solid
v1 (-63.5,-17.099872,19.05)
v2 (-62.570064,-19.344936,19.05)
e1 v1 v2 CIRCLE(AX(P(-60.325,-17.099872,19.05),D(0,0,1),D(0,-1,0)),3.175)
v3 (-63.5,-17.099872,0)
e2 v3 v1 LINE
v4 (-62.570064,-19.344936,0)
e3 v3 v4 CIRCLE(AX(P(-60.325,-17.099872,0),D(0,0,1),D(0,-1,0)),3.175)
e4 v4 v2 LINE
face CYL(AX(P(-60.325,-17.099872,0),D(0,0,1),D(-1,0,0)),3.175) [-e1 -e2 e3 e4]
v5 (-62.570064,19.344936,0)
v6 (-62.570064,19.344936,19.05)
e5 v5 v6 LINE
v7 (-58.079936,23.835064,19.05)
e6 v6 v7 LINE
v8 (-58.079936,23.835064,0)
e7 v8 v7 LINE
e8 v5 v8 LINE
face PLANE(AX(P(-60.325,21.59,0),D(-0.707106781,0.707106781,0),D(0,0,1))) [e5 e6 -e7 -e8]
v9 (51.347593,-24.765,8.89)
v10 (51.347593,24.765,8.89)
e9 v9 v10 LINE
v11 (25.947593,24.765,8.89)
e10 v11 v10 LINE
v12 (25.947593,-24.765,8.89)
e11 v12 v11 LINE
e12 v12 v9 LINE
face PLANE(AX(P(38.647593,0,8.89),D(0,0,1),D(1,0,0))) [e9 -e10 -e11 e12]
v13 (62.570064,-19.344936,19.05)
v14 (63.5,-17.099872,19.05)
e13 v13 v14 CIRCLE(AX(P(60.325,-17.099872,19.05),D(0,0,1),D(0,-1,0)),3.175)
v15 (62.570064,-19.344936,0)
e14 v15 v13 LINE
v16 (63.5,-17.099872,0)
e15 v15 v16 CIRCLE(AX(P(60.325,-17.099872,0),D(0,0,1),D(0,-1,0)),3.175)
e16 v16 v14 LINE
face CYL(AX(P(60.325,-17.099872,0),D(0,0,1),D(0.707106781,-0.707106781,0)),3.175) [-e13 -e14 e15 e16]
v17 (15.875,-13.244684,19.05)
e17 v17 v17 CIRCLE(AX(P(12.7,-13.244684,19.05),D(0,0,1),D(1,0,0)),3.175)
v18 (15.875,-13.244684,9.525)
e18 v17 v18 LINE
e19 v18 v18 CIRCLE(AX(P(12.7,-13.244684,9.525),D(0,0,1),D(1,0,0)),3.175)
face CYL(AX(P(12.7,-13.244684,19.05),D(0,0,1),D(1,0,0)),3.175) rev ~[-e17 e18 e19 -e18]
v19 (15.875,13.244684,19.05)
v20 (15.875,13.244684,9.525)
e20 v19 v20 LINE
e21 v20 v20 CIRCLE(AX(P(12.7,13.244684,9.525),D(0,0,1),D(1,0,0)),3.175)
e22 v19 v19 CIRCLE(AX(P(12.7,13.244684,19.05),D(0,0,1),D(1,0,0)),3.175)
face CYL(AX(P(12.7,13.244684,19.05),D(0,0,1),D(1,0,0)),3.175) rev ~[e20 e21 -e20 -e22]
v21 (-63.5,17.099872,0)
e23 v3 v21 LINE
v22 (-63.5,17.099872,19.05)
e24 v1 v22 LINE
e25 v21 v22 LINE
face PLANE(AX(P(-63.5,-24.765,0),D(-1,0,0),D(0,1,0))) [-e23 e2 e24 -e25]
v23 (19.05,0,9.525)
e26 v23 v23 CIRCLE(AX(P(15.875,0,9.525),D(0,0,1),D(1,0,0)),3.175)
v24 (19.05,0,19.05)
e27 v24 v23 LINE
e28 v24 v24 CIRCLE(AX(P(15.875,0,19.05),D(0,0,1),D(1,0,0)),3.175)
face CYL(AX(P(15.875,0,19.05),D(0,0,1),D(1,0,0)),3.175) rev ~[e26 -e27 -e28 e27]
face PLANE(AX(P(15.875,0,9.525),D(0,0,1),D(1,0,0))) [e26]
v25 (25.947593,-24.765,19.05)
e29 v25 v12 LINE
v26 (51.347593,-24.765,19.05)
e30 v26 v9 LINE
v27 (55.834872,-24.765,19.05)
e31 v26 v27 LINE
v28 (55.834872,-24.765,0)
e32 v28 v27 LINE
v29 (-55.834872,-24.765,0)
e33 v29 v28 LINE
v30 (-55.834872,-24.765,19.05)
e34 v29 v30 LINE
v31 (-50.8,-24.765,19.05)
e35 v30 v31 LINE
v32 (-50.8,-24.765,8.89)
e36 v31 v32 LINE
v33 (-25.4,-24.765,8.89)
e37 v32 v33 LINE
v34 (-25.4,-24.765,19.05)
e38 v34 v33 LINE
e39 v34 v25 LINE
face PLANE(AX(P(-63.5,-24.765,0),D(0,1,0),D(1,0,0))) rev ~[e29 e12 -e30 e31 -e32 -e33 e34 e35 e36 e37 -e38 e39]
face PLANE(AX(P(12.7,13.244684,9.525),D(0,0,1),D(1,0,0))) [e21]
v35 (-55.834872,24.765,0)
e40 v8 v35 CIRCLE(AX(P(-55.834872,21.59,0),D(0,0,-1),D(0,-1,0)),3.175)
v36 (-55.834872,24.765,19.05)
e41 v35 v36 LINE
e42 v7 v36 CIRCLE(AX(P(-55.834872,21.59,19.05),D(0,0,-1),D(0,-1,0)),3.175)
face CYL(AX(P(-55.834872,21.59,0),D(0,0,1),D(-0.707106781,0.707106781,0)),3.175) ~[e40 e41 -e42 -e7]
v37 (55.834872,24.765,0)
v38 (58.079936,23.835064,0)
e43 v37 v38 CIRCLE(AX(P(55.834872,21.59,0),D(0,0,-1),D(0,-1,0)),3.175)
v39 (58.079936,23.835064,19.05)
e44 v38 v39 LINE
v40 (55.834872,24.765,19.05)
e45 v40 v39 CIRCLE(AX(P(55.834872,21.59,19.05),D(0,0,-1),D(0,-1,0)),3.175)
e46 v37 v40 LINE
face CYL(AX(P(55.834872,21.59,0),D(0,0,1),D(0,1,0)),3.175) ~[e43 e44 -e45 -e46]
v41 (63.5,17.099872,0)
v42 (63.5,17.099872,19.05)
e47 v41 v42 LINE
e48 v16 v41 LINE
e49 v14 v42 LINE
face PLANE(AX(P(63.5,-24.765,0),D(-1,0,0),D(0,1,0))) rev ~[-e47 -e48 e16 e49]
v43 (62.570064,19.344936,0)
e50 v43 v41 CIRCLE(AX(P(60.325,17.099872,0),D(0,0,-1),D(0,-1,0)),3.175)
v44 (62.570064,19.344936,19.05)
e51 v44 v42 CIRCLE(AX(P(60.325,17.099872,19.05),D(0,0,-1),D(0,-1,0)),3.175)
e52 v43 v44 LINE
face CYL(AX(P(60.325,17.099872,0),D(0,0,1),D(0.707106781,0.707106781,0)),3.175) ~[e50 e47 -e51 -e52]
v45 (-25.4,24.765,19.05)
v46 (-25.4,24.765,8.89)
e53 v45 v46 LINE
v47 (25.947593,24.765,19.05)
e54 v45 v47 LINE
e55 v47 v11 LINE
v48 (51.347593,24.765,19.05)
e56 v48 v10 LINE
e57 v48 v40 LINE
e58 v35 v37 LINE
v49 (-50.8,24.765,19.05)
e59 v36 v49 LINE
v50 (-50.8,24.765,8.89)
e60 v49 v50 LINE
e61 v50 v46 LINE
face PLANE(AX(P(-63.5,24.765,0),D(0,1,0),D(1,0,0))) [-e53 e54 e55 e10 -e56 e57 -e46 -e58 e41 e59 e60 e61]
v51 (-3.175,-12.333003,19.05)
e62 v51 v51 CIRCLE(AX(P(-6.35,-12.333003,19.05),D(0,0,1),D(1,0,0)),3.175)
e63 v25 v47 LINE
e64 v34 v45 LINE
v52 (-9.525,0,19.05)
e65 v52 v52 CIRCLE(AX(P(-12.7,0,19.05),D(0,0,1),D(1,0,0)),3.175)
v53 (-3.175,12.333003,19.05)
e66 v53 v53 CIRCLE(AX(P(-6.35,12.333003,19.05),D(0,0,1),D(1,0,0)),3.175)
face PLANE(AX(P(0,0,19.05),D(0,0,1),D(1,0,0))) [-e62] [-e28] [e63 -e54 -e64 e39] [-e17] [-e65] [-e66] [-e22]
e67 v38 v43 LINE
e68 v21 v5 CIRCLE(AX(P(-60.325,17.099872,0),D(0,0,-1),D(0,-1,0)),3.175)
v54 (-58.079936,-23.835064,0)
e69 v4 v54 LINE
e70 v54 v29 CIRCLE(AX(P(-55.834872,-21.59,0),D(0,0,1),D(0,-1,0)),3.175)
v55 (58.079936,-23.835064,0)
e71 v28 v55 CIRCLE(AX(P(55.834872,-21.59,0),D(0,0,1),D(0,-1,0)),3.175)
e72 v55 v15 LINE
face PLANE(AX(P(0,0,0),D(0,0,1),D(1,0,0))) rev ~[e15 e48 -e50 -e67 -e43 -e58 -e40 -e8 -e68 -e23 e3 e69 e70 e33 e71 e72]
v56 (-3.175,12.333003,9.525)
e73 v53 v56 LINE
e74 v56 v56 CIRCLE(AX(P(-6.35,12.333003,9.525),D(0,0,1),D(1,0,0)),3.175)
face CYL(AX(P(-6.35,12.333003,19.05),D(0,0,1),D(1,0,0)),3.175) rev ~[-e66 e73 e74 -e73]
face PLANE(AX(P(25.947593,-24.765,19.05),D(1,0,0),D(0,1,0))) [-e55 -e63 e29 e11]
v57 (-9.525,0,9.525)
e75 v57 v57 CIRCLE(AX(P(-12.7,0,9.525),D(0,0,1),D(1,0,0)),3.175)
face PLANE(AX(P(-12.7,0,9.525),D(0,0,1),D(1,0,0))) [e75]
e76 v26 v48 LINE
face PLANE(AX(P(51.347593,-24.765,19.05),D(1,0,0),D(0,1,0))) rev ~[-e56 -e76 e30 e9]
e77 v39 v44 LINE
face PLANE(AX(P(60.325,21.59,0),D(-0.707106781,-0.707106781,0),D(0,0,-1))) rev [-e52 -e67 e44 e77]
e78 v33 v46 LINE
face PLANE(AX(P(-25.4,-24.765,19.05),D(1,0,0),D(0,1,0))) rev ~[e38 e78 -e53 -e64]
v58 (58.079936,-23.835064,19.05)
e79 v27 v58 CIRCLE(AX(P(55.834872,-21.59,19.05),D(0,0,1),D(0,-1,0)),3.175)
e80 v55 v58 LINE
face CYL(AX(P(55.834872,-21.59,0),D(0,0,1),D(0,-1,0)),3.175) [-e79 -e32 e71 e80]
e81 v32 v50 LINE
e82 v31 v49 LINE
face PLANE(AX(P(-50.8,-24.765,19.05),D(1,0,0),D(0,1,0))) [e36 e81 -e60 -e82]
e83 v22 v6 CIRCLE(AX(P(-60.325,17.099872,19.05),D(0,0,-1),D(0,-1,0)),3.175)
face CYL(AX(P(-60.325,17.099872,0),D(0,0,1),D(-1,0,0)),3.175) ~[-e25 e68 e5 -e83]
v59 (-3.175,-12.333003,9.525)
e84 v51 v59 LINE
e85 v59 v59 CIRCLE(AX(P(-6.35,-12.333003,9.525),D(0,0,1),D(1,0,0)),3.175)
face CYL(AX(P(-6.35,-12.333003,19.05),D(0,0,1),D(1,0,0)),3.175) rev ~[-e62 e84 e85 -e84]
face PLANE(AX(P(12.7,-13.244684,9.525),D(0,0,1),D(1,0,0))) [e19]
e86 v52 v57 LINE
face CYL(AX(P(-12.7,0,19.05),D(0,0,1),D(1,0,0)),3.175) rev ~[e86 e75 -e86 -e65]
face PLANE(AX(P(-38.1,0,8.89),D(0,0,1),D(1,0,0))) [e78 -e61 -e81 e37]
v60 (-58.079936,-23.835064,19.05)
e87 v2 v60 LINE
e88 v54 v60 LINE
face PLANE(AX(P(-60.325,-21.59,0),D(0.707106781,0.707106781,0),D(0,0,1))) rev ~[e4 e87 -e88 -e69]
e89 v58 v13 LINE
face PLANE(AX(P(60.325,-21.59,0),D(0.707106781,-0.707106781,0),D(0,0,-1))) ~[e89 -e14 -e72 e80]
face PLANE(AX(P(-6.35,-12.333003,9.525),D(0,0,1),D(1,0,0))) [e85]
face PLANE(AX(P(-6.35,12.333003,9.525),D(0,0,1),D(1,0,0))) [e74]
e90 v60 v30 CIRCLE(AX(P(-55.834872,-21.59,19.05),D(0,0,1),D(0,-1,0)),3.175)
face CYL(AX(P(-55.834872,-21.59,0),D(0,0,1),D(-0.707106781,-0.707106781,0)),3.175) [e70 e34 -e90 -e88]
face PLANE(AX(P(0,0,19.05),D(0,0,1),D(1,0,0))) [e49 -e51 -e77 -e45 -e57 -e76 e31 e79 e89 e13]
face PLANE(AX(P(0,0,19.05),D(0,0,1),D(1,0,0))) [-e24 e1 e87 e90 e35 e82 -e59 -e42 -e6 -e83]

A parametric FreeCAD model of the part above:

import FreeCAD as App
import Part
import Sketcher
from FreeCAD import Vector
Q = App.Units.Quantity


def edges_at(feature, points):
    """Names of the edges that pass closest to the given points."""
    edges = feature.Shape.Edges
    near = lambda p: min(range(len(edges)), key=lambda i: edges[i].distToShape(Part.Vertex(*p))[0])
    return sorted({f"Edge{near(p) + 1}" for p in points})

doc = App.newDocument("Part")
body = doc.addObject("PartDesign::Body", "Body")

sketch1 = doc.addObject("Sketcher::SketchObject", "Sketch")
body.addObject(sketch1)
sketch1.AttachmentSupport = (doc.XY_Plane, [""])
sketch1.MapMode = "FlatFace"
sketch1.addGeometry([
    Part.LineSegment(Vector(-63.5, 24.765, 0), Vector(-63.5, -24.765, 0)),
    Part.LineSegment(Vector(-63.5, -24.765, 0), Vector(63.5, -24.765, 0)),
    Part.LineSegment(Vector(63.5, -24.765, 0), Vector(63.5, 24.765, 0)),
    Part.LineSegment(Vector(63.5, 24.765, 0), Vector(-63.5, 24.765, 0)),
], False)
sketch1.addConstraint([
    Sketcher.Constraint("Coincident", 0, 2, 1, 1),
    Sketcher.Constraint("Coincident", 1, 2, 2, 1),
    Sketcher.Constraint("Coincident", 2, 2, 3, 1),
    Sketcher.Constraint("Coincident", 3, 2, 0, 1),
    Sketcher.Constraint("Vertical", 0),
    Sketcher.Constraint("Horizontal", 1),
    Sketcher.Constraint("Vertical", 2),
    Sketcher.Constraint("Horizontal", 3),
    Sketcher.Constraint("Symmetric", 0, 2, 2, 2, -1, 1),
    Sketcher.Constraint("DistanceX", 1, 1, 1, 2, Q("5 in")),
    Sketcher.Constraint("DistanceY", 0, 2, 0, 1, Q("1.95 in")),
])
pad1 = doc.addObject("PartDesign::Pad", "Pad")
body.addObject(pad1)
pad1.Profile = sketch1
pad1.Length = Q("0.75 in")

sketch2 = doc.addObject("Sketcher::SketchObject", "Sketch001")
body.addObject(sketch2)
sketch2.AttachmentSupport = (doc.XY_Plane, [""])
sketch2.MapMode = "FlatFace"
sketch2.AttachmentOffset = App.Placement(Vector(0, 0, 0.75 * 25.4), App.Rotation())
sketch2.addGeometry([
    Part.LineSegment(Vector(-50.8, 24.765, 0), Vector(-50.8, -24.765, 0)),
    Part.LineSegment(Vector(-50.8, -24.765, 0), Vector(-25.4, -24.765, 0)),
    Part.LineSegment(Vector(-25.4, -24.765, 0), Vector(-25.4, 24.765, 0)),
    Part.LineSegment(Vector(-25.4, 24.765, 0), Vector(-50.8, 24.765, 0)),
], False)
sketch2.addConstraint([
    Sketcher.Constraint("Coincident", 0, 2, 1, 1),
    Sketcher.Constraint("Coincident", 1, 2, 2, 1),
    Sketcher.Constraint("Coincident", 2, 2, 3, 1),
    Sketcher.Constraint("Coincident", 3, 2, 0, 1),
    Sketcher.Constraint("Vertical", 0),
    Sketcher.Constraint("Horizontal", 1),
    Sketcher.Constraint("Vertical", 2),
    Sketcher.Constraint("Horizontal", 3),
    Sketcher.Constraint("DistanceX", 1, 1, 1, 2, Q("1 in")),
    Sketcher.Constraint("DistanceX", 0, 2, -1, 1, Q("2 in")),
    Sketcher.Constraint("DistanceY", 0, 2, 0, 1, Q("1.95 in")),
    Sketcher.Constraint("DistanceY", 0, 2, -1, 1, Q("0.975 in")),
])
pocket1 = doc.addObject("PartDesign::Pocket", "Pocket")
body.addObject(pocket1)
pocket1.Profile = sketch2
pocket1.Length = Q("0.4 in")

sketch3 = doc.addObject("Sketcher::SketchObject", "Sketch002")
body.addObject(sketch3)
sketch3.AttachmentSupport = (doc.XY_Plane, [""])
sketch3.MapMode = "FlatFace"
sketch3.AttachmentOffset = App.Placement(Vector(0, 0, 0.75 * 25.4), App.Rotation())
sketch3.addGeometry([
    Part.LineSegment(Vector(25.947593, 24.765, 0), Vector(25.947593, -24.765, 0)),
    Part.LineSegment(Vector(25.947593, -24.765, 0), Vector(51.347593, -24.765, 0)),
    Part.LineSegment(Vector(51.347593, -24.765, 0), Vector(51.347593, 24.765, 0)),
    Part.LineSegment(Vector(51.347593, 24.765, 0), Vector(25.947593, 24.765, 0)),
], False)
sketch3.addConstraint([
    Sketcher.Constraint("Coincident", 0, 2, 1, 1),
    Sketcher.Constraint("Coincident", 1, 2, 2, 1),
    Sketcher.Constraint("Coincident", 2, 2, 3, 1),
    Sketcher.Constraint("Coincident", 3, 2, 0, 1),
    Sketcher.Constraint("Vertical", 0),
    Sketcher.Constraint("Horizontal", 1),
    Sketcher.Constraint("Vertical", 2),
    Sketcher.Constraint("Horizontal", 3),
    Sketcher.Constraint("DistanceX", 1, 1, 1, 2, Q("1 in")),
    Sketcher.Constraint("DistanceY", 0, 2, 0, 1, Q("1.95 in")),
    Sketcher.Constraint("DistanceY", 0, 2, -1, 1, Q("0.975 in")),
    Sketcher.Constraint("DistanceX", -1, 1, 0, 2, Q("25.947593 mm")),
])
pocket2 = doc.addObject("PartDesign::Pocket", "Pocket001")
body.addObject(pocket2)
pocket2.Profile = sketch3
pocket2.Length = Q("0.4 in")

sketch4 = doc.addObject("Sketcher::SketchObject", "Sketch003")
body.addObject(sketch4)
sketch4.AttachmentSupport = (doc.XY_Plane, [""])
sketch4.MapMode = "FlatFace"
sketch4.AttachmentOffset = App.Placement(Vector(0, 0, 0.75 * 25.4), App.Rotation())
sketch4.addGeometry([
    Part.Circle(Vector(-6.35, -12.333003, 0), Vector(0, 0, 1), 3.175),
    Part.Circle(Vector(-12.7, 0, 0), Vector(0, 0, 1), 3.175),
    Part.Circle(Vector(-6.35, 12.333003, 0), Vector(0, 0, 1), 3.175),
    Part.Circle(Vector(12.7, 13.244684, 0), Vector(0, 0, 1), 3.175),
    Part.Circle(Vector(15.875, 0, 0), Vector(0, 0, 1), 3.175),
    Part.Circle(Vector(12.7, -13.244684, 0), Vector(0, 0, 1), 3.175),
], False)
sketch4.addConstraint([
    Sketcher.Constraint("Equal", 0, 1),
    Sketcher.Constraint("Equal", 1, 2),
    Sketcher.Constraint("Equal", 2, 3),
    Sketcher.Constraint("Equal", 3, 4),
    Sketcher.Constraint("Equal", 4, 5),
    Sketcher.Constraint("Symmetric", 0, 3, 2, 3, -1),
    Sketcher.Constraint("Symmetric", 3, 3, 5, 3, -1),
    Sketcher.Constraint("PointOnObject", 1, 3, -1),
    Sketcher.Constraint("PointOnObject", 4, 3, -1),
    Sketcher.Constraint("Diameter", 0, Q("0.25 in")),
    Sketcher.Constraint("DistanceX", 1, 3, 3, 3, Q("1 in")),
    Sketcher.Constraint("DistanceX", 1, 3, -1, 1, Q("0.5 in")),
    Sketcher.Constraint("DistanceX", 0, 3, -1, 1, Q("0.25 in")),
    Sketcher.Constraint("DistanceX", -1, 1, 4, 3, Q("0.625 in")),
    Sketcher.Constraint("DistanceY", 2, 3, 3, 3, Q("0.911681 mm")),
    Sketcher.Constraint("DistanceY", 0, 3, -1, 1, Q("12.333003 mm")),
])
pocket3 = doc.addObject("PartDesign::Pocket", "Pocket002")
body.addObject(pocket3)
pocket3.Profile = sketch4
pocket3.Length = Q("0.375 in")
doc.recompute()

chamfer = doc.addObject("PartDesign::Chamfer", "Chamfer")
body.addObject(chamfer)
chamfer.Base = (pocket3, edges_at(pocket3, [
    (63.5, -24.765, 9.525),
    (63.5, 24.765, 9.525),
    (-63.5, -24.765, 9.525),
    (-63.5, 24.765, 9.525),
]))
chamfer.Size = Q("0.25 in")
doc.recompute()

fillet = doc.addObject("PartDesign::Fillet", "Fillet")
body.addObject(fillet)
fillet.Base = (chamfer, edges_at(chamfer, [
    (-57.15, -24.765, 9.525),
    (57.15, -24.765, 9.525),
    (63.5, -18.415, 9.525),
    (63.5, 18.415, 9.525),
    (-63.5, -18.415, 9.525),
    (57.15, 24.765, 9.525),
    (-57.15, 24.765, 9.525),
    (-63.5, 18.415, 9.525),
]))
fillet.Radius = Q("0.125 in")

doc.recompute()
